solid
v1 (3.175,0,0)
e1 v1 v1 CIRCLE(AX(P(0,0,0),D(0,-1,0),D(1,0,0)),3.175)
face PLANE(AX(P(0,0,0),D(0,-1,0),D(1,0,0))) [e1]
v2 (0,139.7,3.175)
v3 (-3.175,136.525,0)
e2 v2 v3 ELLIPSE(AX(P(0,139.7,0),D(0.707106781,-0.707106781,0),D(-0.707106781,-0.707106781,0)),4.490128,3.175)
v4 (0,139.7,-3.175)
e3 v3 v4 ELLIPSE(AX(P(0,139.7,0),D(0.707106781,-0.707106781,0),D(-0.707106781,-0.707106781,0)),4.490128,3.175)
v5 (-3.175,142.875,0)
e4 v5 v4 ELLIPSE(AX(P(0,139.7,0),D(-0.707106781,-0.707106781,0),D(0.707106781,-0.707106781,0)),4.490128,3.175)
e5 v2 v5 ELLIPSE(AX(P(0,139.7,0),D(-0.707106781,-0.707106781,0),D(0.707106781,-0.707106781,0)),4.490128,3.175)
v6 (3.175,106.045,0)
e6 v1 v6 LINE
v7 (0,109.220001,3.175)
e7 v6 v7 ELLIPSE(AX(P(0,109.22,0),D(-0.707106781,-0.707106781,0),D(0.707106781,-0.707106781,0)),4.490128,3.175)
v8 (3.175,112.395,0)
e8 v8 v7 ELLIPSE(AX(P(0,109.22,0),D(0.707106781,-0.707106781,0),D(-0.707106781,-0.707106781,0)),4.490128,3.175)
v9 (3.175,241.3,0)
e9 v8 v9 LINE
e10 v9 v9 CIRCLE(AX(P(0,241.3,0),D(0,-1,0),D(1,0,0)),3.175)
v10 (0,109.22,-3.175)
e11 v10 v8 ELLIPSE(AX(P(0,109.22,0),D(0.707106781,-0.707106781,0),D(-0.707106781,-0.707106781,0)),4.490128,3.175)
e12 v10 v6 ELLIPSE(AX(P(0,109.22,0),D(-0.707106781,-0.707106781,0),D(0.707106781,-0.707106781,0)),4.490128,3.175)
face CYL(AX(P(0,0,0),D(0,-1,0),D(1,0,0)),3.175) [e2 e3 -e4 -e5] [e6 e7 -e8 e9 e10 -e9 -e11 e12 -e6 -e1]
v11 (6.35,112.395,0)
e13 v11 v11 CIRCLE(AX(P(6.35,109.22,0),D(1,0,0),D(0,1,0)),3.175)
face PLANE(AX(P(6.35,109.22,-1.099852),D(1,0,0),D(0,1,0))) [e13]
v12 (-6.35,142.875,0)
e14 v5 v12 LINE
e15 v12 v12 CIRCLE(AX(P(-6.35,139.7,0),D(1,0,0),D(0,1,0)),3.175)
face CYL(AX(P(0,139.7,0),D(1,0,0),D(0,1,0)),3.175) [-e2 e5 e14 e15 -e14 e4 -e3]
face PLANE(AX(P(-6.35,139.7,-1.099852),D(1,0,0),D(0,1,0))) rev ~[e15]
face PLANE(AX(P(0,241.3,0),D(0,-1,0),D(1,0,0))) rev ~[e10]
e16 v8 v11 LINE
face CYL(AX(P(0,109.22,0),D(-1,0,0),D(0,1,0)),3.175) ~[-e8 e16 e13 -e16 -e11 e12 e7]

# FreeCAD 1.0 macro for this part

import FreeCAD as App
import Part
import Sketcher
Q = App.Units.Quantity

doc = App.newDocument("Part")
body = doc.addObject("PartDesign::Body", "Body")

sketch1 = body.newObject("Sketcher::SketchObject", "Sketch")
sketch1.AttachmentSupport = (doc.getObject("XZ_Plane"), [""])
sketch1.MapMode = "FlatFace"
sketch1.addGeometry(Part.Circle(App.Vector(0, 0, 0), App.Vector(0, 0, 1), 3.175), False)
sketch1.addConstraint([
    Sketcher.Constraint("Coincident", 0, 3, -1, 1),
    Sketcher.Constraint("Diameter", 0, Q("0.25 in")),
])
pad1 = body.newObject("PartDesign::Pad", "Pad")
pad1.Profile = sketch1
pad1.Length = Q("9.5 in")
pad1.Reversed = True

sketch2 = body.newObject("Sketcher::SketchObject", "Sketch001")
sketch2.AttachmentSupport = (doc.getObject("YZ_Plane"), [""])
sketch2.MapMode = "FlatFace"
sketch2.addGeometry(Part.Circle(App.Vector(109.22, 0, 0), App.Vector(0, 0, 1), 3.175), False)
sketch2.addConstraint([
    Sketcher.Constraint("PointOnObject", 0, 3, -1),
    Sketcher.Constraint("Diameter", 0, Q("0.25 in")),
    Sketcher.Constraint("DistanceX", -1, 1, 0, 3, Q("4.3 in")),
])
pad2 = body.newObject("PartDesign::Pad", "Pad001")
pad2.Profile = sketch2
pad2.Length = Q("0.25 in")

sketch3 = body.newObject("Sketcher::SketchObject", "Sketch002")
sketch3.AttachmentSupport = (doc.getObject("YZ_Plane"), [""])
sketch3.MapMode = "FlatFace"
sketch3.addGeometry(Part.Circle(App.Vector(139.7, 0, 0), App.Vector(0, 0, 1), 3.175), False)
sketch3.addConstraint([
    Sketcher.Constraint("PointOnObject", 0, 3, -1),
    Sketcher.Constraint("Diameter", 0, Q("0.25 in")),
    Sketcher.Constraint("DistanceX", -1, 1, 0, 3, Q("5.5 in")),
])
pad3 = body.newObject("PartDesign::Pad", "Pad002")
pad3.Profile = sketch3
pad3.Length = Q("0.25 in")
pad3.Reversed = True

doc.recompute()
